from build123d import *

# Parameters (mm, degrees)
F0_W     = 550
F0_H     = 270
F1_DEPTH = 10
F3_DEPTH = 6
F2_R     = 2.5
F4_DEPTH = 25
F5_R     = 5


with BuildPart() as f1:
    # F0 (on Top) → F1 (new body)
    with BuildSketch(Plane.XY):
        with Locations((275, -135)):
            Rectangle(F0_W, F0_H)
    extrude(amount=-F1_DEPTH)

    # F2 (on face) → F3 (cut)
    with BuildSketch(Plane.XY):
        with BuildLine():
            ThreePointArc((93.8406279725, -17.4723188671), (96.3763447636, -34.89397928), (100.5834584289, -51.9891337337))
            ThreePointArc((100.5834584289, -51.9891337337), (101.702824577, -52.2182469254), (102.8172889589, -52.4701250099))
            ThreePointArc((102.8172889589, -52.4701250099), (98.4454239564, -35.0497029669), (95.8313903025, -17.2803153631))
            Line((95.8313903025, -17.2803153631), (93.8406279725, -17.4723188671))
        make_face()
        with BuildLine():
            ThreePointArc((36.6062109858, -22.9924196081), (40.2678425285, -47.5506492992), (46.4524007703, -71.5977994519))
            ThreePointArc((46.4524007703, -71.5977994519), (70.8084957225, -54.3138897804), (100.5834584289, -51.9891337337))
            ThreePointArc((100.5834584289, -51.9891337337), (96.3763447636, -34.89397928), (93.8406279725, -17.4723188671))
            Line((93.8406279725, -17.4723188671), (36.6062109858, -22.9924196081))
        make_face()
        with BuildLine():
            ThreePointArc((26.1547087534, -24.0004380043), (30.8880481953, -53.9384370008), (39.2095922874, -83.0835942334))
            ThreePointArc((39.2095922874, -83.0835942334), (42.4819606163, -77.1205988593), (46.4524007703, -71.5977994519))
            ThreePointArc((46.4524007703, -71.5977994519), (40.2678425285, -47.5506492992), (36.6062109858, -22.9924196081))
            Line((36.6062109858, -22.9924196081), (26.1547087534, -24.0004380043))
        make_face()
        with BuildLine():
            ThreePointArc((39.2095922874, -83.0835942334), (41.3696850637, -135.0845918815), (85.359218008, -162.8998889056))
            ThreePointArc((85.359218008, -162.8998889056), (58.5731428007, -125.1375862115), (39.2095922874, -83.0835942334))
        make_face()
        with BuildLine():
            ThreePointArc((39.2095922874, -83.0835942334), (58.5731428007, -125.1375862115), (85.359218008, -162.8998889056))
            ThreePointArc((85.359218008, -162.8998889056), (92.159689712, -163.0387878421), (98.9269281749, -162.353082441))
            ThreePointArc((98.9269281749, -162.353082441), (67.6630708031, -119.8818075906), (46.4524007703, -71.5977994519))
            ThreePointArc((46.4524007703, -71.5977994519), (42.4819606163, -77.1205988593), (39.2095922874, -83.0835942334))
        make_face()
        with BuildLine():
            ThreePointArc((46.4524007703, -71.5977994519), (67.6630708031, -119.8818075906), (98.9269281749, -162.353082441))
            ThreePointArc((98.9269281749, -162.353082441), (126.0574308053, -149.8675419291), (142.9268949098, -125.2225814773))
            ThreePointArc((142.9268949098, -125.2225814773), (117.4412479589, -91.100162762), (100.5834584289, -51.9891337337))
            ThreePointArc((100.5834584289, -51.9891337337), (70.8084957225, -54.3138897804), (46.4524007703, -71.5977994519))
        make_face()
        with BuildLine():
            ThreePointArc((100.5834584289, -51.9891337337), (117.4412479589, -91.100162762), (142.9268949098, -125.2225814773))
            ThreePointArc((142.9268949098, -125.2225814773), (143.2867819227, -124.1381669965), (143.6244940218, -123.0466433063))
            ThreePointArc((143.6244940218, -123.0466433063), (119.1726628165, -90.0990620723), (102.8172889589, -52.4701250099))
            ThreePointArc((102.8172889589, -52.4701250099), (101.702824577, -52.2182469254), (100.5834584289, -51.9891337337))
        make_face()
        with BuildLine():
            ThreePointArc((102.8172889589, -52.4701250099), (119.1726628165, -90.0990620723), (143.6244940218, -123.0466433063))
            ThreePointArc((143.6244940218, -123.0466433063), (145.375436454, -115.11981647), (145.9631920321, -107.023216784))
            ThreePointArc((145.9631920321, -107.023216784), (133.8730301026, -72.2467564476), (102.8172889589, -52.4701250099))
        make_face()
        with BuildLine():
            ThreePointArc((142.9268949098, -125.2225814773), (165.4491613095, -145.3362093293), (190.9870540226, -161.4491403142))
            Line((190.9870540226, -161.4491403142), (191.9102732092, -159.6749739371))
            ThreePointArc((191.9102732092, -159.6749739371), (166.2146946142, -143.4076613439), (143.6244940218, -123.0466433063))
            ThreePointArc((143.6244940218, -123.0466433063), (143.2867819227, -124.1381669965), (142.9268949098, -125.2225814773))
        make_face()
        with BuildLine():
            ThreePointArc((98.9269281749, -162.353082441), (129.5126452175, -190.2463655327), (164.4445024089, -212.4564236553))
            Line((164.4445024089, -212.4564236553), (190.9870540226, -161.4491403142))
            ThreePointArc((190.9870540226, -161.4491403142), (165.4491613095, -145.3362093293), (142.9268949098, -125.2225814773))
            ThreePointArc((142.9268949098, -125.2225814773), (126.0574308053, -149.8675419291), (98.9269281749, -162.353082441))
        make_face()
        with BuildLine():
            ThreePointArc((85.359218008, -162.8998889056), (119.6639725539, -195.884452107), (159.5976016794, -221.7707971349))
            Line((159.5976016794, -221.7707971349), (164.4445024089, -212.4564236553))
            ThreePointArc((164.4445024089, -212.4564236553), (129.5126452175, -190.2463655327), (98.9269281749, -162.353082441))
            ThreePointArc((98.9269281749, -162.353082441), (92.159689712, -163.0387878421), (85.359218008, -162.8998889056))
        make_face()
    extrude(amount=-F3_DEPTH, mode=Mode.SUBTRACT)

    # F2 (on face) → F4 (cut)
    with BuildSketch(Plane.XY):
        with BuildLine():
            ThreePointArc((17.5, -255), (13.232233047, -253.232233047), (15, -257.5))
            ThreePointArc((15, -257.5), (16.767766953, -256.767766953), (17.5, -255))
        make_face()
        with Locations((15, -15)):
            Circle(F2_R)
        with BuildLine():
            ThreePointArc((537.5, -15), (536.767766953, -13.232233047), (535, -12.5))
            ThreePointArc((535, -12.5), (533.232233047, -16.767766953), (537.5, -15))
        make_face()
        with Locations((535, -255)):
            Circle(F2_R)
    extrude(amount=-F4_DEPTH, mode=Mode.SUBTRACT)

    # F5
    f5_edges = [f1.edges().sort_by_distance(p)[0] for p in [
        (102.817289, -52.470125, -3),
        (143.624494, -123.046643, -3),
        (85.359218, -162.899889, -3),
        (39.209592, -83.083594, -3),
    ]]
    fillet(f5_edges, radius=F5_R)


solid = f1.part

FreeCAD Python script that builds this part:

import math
import FreeCAD as App
import Part
import Sketcher
Q = App.Units.Quantity


def edges_at(feature, points):
    """Names of the edges that pass closest to the given points."""
    edges = feature.Shape.Edges
    near = lambda p: min(range(len(edges)), key=lambda i: edges[i].distToShape(Part.Vertex(*p))[0])
    return sorted({f"Edge{near(p) + 1}" for p in points})

doc = App.newDocument("Part")
body = doc.addObject("PartDesign::Body", "Body")

sketch1 = body.newObject("Sketcher::SketchObject", "Sketch")
sketch1.AttachmentSupport = (doc.getObject("XY_Plane"), [""])
sketch1.MapMode = "FlatFace"
sketch1.addGeometry([
    Part.LineSegment(App.Vector(0, 0, 0), App.Vector(0, -270, 0)),
    Part.LineSegment(App.Vector(0, -270, 0), App.Vector(550, -270, 0)),
    Part.LineSegment(App.Vector(550, -270, 0), App.Vector(550, 0, 0)),
    Part.LineSegment(App.Vector(550, 0, 0), App.Vector(0, 0, 0)),
], False)
sketch1.addConstraint([
    Sketcher.Constraint("Coincident", 0, 2, 1, 1),
    Sketcher.Constraint("Coincident", 1, 2, 2, 1),
    Sketcher.Constraint("Coincident", 2, 2, 3, 1),
    Sketcher.Constraint("Coincident", 3, 2, 0, 1),
    Sketcher.Constraint("Vertical", 0),
    Sketcher.Constraint("Horizontal", 1),
    Sketcher.Constraint("Vertical", 2),
    Sketcher.Constraint("Horizontal", 3),
    Sketcher.Constraint("Coincident", 3, 2, -1, 1),
    Sketcher.Constraint("DistanceX", 1, 1, 1, 2, Q("550 mm")),
    Sketcher.Constraint("DistanceY", 0, 2, 0, 1, Q("270 mm")),
])
pad1 = body.newObject("PartDesign::Pad", "Pad")
pad1.Profile = sketch1
pad1.Length = 10
pad1.Reversed = True

sketch2 = body.newObject("Sketcher::SketchObject", "Sketch001")
sketch2.AttachmentSupport = (doc.getObject("XY_Plane"), [""])
sketch2.MapMode = "FlatFace"
sketch2.addGeometry([
    Part.ArcOfCircle(Part.Circle(App.Vector(275, 0, 0), App.Vector(0, 0, 1), 180), math.radians(-174.49102), math.radians(-163.052178)),
    Part.LineSegment(App.Vector(95.83139, -17.280315, 0), App.Vector(93.840628, -17.472319, 0)),
    Part.LineSegment(App.Vector(93.840628, -17.472319, 0), App.Vector(36.606211, -22.99242, 0)),
    Part.LineSegment(App.Vector(36.606211, -22.99242, 0), App.Vector(26.154709, -24.000438, 0)),
    Part.ArcOfCircle(Part.Circle(App.Vector(275, 0, 0), App.Vector(0, 0, 1), 250), math.radians(-174.49102), math.radians(-160.589476)),
    Part.ArcOfCircle(Part.Circle(App.Vector(89.902148, -107.023217, 0), App.Vector(0, 0, 1), 56.061044), math.radians(154.720918), math.radians(265.351916)),
    Part.ArcOfCircle(Part.Circle(App.Vector(275, 0, 0), App.Vector(0, 0, 1), 250), math.radians(-139.33769), math.radians(-117.49102)),
    Part.LineSegment(App.Vector(159.597602, -221.770797, 0), App.Vector(164.444502, -212.456424, 0)),
    Part.LineSegment(App.Vector(164.444502, -212.456424, 0), App.Vector(190.987054, -161.44914, 0)),
    Part.LineSegment(App.Vector(190.987054, -161.44914, 0), App.Vector(191.910273, -159.674974, 0)),
    Part.ArcOfCircle(Part.Circle(App.Vector(275, 0, 0), App.Vector(0, 0, 1), 180), math.radians(-136.874987), math.radians(-117.49102)),
    Part.ArcOfCircle(Part.Circle(App.Vector(89.902148, -107.023217, 0), App.Vector(0, 0, 1), 56.061044), math.radians(-16.607933), math.radians(0)),
    Part.ArcOfCircle(Part.Circle(App.Vector(89.902148, -107.023217, 0), App.Vector(0, 0, 1), 56.061044), math.radians(0), math.radians(76.680767)),
], False)
sketch2.addConstraint([
    Sketcher.Constraint("Coincident", 0, 1, 1, 1),
    Sketcher.Constraint("Coincident", 1, 2, 2, 1),
    Sketcher.Constraint("Coincident", 2, 2, 3, 1),
    Sketcher.Constraint("Coincident", 3, 2, 4, 1),
    Sketcher.Constraint("Coincident", 4, 2, 5, 1),
    Sketcher.Constraint("Coincident", 5, 2, 6, 1),
    Sketcher.Constraint("Coincident", 6, 2, 7, 1),
    Sketcher.Constraint("Coincident", 7, 2, 8, 1),
    Sketcher.Constraint("Coincident", 8, 2, 9, 1),
    Sketcher.Constraint("Coincident", 9, 2, 10, 2),
    Sketcher.Constraint("Coincident", 10, 1, 11, 1),
    Sketcher.Constraint("Tangent", 11, 2, 12, 1),
    Sketcher.Constraint("Coincident", 12, 2, 0, 2),
    Sketcher.Constraint("Coincident", 4, 3, 0, 3),
    Sketcher.Constraint("Coincident", 6, 3, 0, 3),
    Sketcher.Constraint("Coincident", 10, 3, 0, 3),
    Sketcher.Constraint("Coincident", 11, 3, 5, 3),
    Sketcher.Constraint("Equal", 4, 6),
    Sketcher.Constraint("Equal", 0, 10),
    Sketcher.Constraint("Equal", 5, 11),
    Sketcher.Constraint("Equal", 11, 12),
    Sketcher.Constraint("PointOnObject", 0, 3, -1),
    Sketcher.Constraint("Parallel", 1, 2),
    Sketcher.Constraint("Parallel", 2, 3),
    Sketcher.Constraint("Parallel", 7, 8),
    Sketcher.Constraint("Parallel", 8, 9),
    Sketcher.Constraint("Horizontal", 12, 3, 11, 2),
    Sketcher.Constraint("Equal", 3, 7),
    Sketcher.Constraint("Equal", 2, 8),
    Sketcher.Constraint("Radius", 0, Q("180 mm")),
    Sketcher.Constraint("Radius", 4, Q("250 mm")),
    Sketcher.Constraint("Distance", 1, Q("2 mm")),
    Sketcher.Constraint("DistanceX", -1, 1, 0, 3, Q("275 mm")),
    Sketcher.Constraint("Distance", 2, Q("57.5 mm")),
    Sketcher.Constraint("Radius", 5, Q("56.061044 mm")),
    Sketcher.Constraint("DistanceX", -1, 1, 6, 2, Q("159.597602 mm")),
    Sketcher.Constraint("DistanceY", 5, 3, 0, 1, Q("89.742901 mm")),
    Sketcher.Constraint("DistanceY", 2, 2, 1, 2, Q("5.520101 mm")),
    Sketcher.Constraint("DistanceY", 1, 2, -1, 1, Q("17.472319 mm")),
    Sketcher.Constraint("DistanceY", 5, 2, -1, 1, Q("162.899889 mm")),
    Sketcher.Constraint("DistanceY", 8, 2, -1, 1, Q("161.44914 mm")),
])
pocket1 = body.newObject("PartDesign::Pocket", "Pocket")
pocket1.Profile = sketch2
pocket1.Length = 6

sketch3 = body.newObject("Sketcher::SketchObject", "Sketch002")
sketch3.AttachmentSupport = (doc.getObject("XY_Plane"), [""])
sketch3.MapMode = "FlatFace"
sketch3.addGeometry([
    Part.ArcOfCircle(Part.Circle(App.Vector(15, -255, 0), App.Vector(0, 0, 1), 2.5), math.radians(0), math.radians(270)),
    Part.ArcOfCircle(Part.Circle(App.Vector(15, -255, 0), App.Vector(0, 0, 1), 2.5), math.radians(-90), math.radians(0)),
    Part.Circle(App.Vector(15, -15, 0), App.Vector(0, 0, 1), 2.5),
    Part.ArcOfCircle(Part.Circle(App.Vector(535, -15, 0), App.Vector(0, 0, 1), 2.5), math.radians(0), math.radians(90)),
    Part.ArcOfCircle(Part.Circle(App.Vector(535, -15, 0), App.Vector(0, 0, 1), 2.5), math.radians(90), math.radians(360)),
    Part.Circle(App.Vector(535, -255, 0), App.Vector(0, 0, 1), 2.5),
], False)
sketch3.addConstraint([
    Sketcher.Constraint("Tangent", 0, 1, 1, 2),
    Sketcher.Constraint("Coincident", 1, 1, 0, 2),
    Sketcher.Constraint("Tangent", 3, 1, 4, 2),
    Sketcher.Constraint("Coincident", 4, 1, 3, 2),
    Sketcher.Constraint("Equal", 1, 2),
    Sketcher.Constraint("Equal", 2, 3),
    Sketcher.Constraint("Equal", 4, 5),
    Sketcher.Constraint("Horizontal", 2, 3, 3, 3),
    Sketcher.Constraint("Horizontal", 1, 3, 5, 3),
    Sketcher.Constraint("Horizontal", 5, 3, 0, 1),
    Sketcher.Constraint("Horizontal", 4, 3, 3, 1),
    Sketcher.Constraint("Vertical", 1, 3, 2, 3),
    Sketcher.Constraint("Vertical", 4, 3, 5, 3),
    Sketcher.Constraint("Vertical", 2, 3, 1, 1),
    Sketcher.Constraint("Vertical", 5, 3, 4, 1),
    Sketcher.Constraint("Diameter", 2, Q("5 mm")),
    Sketcher.Constraint("DistanceX", -1, 1, 0, 3, Q("15 mm")),
    Sketcher.Constraint("DistanceY", 0, 3, -1, 1, Q("255 mm")),
    Sketcher.Constraint("DistanceY", 2, 3, -1, 1, Q("15 mm")),
    Sketcher.Constraint("DistanceX", -1, 1, 3, 3, Q("535 mm")),
])
pocket2 = body.newObject("PartDesign::Pocket", "Pocket001")
pocket2.Profile = sketch3
pocket2.Length = 25
doc.recompute()

fillet = body.newObject("PartDesign::Fillet", "Fillet")
fillet.Base = (pocket2, edges_at(pocket2, [
    (102.817, -52.47, -3),
    (143.624, -123.047, -3),
    (85.359, -162.9, -3),
    (39.21, -83.084, -3),
]))
fillet.Radius = 5

doc.recompute()
